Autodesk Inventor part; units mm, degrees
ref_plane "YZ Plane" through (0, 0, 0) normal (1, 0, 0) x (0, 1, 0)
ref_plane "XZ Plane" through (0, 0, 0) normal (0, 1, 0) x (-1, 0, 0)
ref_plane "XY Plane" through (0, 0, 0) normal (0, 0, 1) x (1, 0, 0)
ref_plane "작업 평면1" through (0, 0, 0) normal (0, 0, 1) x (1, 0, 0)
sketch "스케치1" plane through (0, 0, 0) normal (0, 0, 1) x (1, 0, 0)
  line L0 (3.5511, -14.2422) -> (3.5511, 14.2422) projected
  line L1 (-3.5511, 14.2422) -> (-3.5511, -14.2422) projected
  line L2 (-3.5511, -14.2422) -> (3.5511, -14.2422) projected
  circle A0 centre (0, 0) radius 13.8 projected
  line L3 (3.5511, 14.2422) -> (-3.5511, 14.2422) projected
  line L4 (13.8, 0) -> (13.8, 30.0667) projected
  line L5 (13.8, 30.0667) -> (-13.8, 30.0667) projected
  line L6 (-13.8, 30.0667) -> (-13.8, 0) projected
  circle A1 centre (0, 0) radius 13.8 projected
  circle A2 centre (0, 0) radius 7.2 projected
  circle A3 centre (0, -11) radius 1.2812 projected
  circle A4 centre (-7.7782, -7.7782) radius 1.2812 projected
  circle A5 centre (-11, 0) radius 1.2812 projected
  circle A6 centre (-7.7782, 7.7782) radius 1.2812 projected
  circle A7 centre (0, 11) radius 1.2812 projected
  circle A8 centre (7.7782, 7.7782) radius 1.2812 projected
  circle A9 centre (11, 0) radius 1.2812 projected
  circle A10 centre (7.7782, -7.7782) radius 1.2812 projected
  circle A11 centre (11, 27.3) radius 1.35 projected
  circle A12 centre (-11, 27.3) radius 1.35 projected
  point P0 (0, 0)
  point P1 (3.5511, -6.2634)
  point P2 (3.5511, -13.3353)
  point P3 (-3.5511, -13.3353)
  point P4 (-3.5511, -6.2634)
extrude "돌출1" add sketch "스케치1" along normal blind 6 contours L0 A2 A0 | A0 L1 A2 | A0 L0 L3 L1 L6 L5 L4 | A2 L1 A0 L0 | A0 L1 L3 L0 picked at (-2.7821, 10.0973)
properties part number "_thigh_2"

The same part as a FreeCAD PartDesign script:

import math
import FreeCAD as App
import Part
import Sketcher
from FreeCAD import Vector
Q = App.Units.Quantity

doc = App.newDocument("Part")
body = doc.addObject("PartDesign::Body", "Body")

# Sketch on XY plane
sketch1 = body.newObject("Sketcher::SketchObject", "Sketch")
sketch1.AttachmentSupport = (doc.getObject("XY_Plane"), [""])
sketch1.MapMode = "FlatFace"
sketch1.addGeometry([
    Part.LineSegment(Vector(3.6, -6.3, 0), Vector(3.6, -13.3, 0)),  # 0
    Part.ArcOfCircle(Part.Circle(Vector(0, 0, 0), Vector(0, 0, 1), 13.8), math.radians(-75), math.radians(0)),  # 1
    Part.LineSegment(Vector(13.8, 0, 0), Vector(13.8, 30.1, 0)),  # 2
    Part.LineSegment(Vector(13.8, 30.1, 0), Vector(-13.8, 30.1, 0)),  # 3
    Part.LineSegment(Vector(-13.8, 30.1, 0), Vector(-13.8, 0, 0)),  # 4
    Part.ArcOfCircle(Part.Circle(Vector(0, 0, 0), Vector(0, 0, 1), 13.8), math.radians(180), math.radians(255)),  # 5
    Part.LineSegment(Vector(-3.6, -13.3, 0), Vector(-3.6, -6.3, 0)),  # 6
    Part.ArcOfCircle(Part.Circle(Vector(0, 0, 0), Vector(0, 0, 1), 7.2), math.radians(-60), math.radians(240)),  # 7
    Part.Circle(Vector(7.8, -7.8, 0), Vector(0, 0, 1), 1.3),  # 8
    Part.Circle(Vector(11, 0, 0), Vector(0, 0, 1), 1.3),  # 9
    Part.Circle(Vector(7.8, 7.8, 0), Vector(0, 0, 1), 1.3),  # 10
    Part.Circle(Vector(0, 11, 0), Vector(0, 0, 1), 1.3),  # 11
    Part.Circle(Vector(11, 27.3, 0), Vector(0, 0, 1), 1.4),  # 12
    Part.Circle(Vector(-11, 27.3, 0), Vector(0, 0, 1), 1.4),  # 13
    Part.Circle(Vector(-11, 0, 0), Vector(0, 0, 1), 1.3),  # 14
    Part.Circle(Vector(-7.8, 7.8, 0), Vector(0, 0, 1), 1.3),  # 15
    Part.Circle(Vector(-7.8, -7.8, 0), Vector(0, 0, 1), 1.3),  # 16
], False)
sketch1.addConstraint([
    Sketcher.Constraint("Coincident", 0, 2, 1, 1),
    Sketcher.Constraint("Tangent", 1, 2, 2, 1),
    Sketcher.Constraint("Coincident", 2, 2, 3, 1),
    Sketcher.Constraint("Coincident", 3, 2, 4, 1),
    Sketcher.Constraint("Tangent", 4, 2, 5, 1),
    Sketcher.Constraint("Coincident", 5, 2, 6, 1),
    Sketcher.Constraint("Coincident", 6, 2, 7, 2),
    Sketcher.Constraint("Coincident", 7, 1, 0, 1),
    Sketcher.Constraint("Vertical", 0),
    Sketcher.Constraint("Vertical", 2),
    Sketcher.Constraint("Horizontal", 3),
    Sketcher.Constraint("Vertical", 4),
    Sketcher.Constraint("Vertical", 6),
    Sketcher.Constraint("Coincident", 1, 3, -1, 1),
    Sketcher.Constraint("Coincident", 5, 3, -1, 1),
    Sketcher.Constraint("Coincident", 7, 3, -1, 1),
    Sketcher.Constraint("Equal", 1, 5),
    Sketcher.Constraint("Equal", 8, 9),
    Sketcher.Constraint("Equal", 9, 10),
    Sketcher.Constraint("Equal", 10, 11),
    Sketcher.Constraint("Equal", 12, 13),
    Sketcher.Constraint("Equal", 11, 14),
    Sketcher.Constraint("Equal", 14, 15),
    Sketcher.Constraint("Equal", 15, 16),
    Sketcher.Constraint("Symmetric", 9, 3, 14, 3, -1, 1),
    Sketcher.Constraint("Symmetric", 8, 3, 15, 3, -1, 1),
    Sketcher.Constraint("Symmetric", 10, 3, 16, 3, -1, 1),
    Sketcher.Constraint("Symmetric", 12, 3, 13, 3, -2),
    Sketcher.Constraint("Symmetric", 10, 3, 15, 3, -2),
    Sketcher.Constraint("PointOnObject", 9, 3, -1),
    Sketcher.Constraint("PointOnObject", 11, 3, -2),
    Sketcher.Constraint("Horizontal", 0, 2, 5, 2),
    Sketcher.Constraint("Vertical", 9, 3, 12, 3),
    Sketcher.Constraint("Diameter", 12, Q("2.7 mm")),
    Sketcher.Constraint("Radius", 1, Q("13.8 mm")),
    Sketcher.Constraint("Radius", 7, Q("7.2 mm")),
    Sketcher.Constraint("DistanceX", -1, 1, 9, 3, Q("11 mm")),
    Sketcher.Constraint("DistanceY", -1, 1, 11, 3, Q("11 mm")),
    Sketcher.Constraint("Diameter", 8, Q("2.5624 mm")),
    Sketcher.Constraint("DistanceY", -1, 1, 12, 3, Q("27.3 mm")),
    Sketcher.Constraint("DistanceY", 0, 2, 0, 1, Q("7.072 mm")),
    Sketcher.Constraint("DistanceY", 2, 1, 2, 2, Q("30.0667 mm")),
    Sketcher.Constraint("DistanceX", 0, 2, 8, 3, Q("4.227 mm")),
    Sketcher.Constraint("DistanceY", 0, 2, 8, 3, Q("5.557 mm")),
])
pad1 = body.newObject("PartDesign::Pad", "Pad")
pad1.Profile = sketch1
pad1.Length = 6

doc.recompute()
